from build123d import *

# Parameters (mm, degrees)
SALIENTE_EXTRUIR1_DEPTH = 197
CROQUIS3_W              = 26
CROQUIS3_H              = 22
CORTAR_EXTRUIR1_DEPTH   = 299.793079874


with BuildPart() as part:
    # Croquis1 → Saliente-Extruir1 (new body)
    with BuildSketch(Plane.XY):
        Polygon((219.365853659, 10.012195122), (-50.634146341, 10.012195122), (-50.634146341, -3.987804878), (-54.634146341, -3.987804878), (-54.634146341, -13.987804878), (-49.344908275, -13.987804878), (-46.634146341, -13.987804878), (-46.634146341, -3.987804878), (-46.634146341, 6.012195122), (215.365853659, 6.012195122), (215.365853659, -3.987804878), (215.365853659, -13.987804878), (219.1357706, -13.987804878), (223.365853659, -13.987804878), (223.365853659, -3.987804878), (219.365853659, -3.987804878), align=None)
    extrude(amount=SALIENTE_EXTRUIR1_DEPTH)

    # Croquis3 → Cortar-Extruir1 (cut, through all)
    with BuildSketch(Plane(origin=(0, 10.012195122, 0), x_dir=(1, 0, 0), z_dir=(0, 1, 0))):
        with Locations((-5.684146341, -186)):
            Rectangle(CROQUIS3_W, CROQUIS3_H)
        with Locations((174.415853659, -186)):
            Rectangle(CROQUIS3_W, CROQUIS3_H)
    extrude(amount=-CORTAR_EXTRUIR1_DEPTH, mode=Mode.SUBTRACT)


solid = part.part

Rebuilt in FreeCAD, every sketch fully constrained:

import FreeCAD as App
import Part
import Sketcher
Q = App.Units.Quantity


def add_polygon(sketch, points):
    """Adds a closed chain of lines whose ends are joined by coincident constraints."""
    first, n = sketch.GeometryCount, len(points)
    for a, b in zip(points, points[1:] + points[:1]):
        sketch.addGeometry(Part.LineSegment(App.Vector(*a, 0), App.Vector(*b, 0)), False)
    for i in range(n):
        sketch.addConstraint(Sketcher.Constraint("Coincident", first + i, 2, first + (i + 1) % n, 1))

doc = App.newDocument("Part")
body = doc.addObject("PartDesign::Body", "Body")

sketch1 = doc.addObject("Sketcher::SketchObject", "Sketch")
body.addObject(sketch1)
sketch1.AttachmentSupport = (doc.XY_Plane, [""])
sketch1.MapMode = "FlatFace"
add_polygon(sketch1, [(219.365854, 10.012195), (-50.634146, 10.012195), (-50.634146, -3.987805), (-54.634146, -3.987805), (-54.634146, -13.987805), (-46.634146, -13.987805), (-46.634146, 6.012195), (215.365854, 6.012195), (215.365854, -13.987805), (223.365854, -13.987805), (223.365854, -3.987805), (219.365854, -3.987805)])
sketch1.addConstraint([
    Sketcher.Constraint("Horizontal", 0),
    Sketcher.Constraint("Vertical", 1),
    Sketcher.Constraint("Horizontal", 2),
    Sketcher.Constraint("Vertical", 3),
    Sketcher.Constraint("Horizontal", 4),
    Sketcher.Constraint("Vertical", 5),
    Sketcher.Constraint("Horizontal", 6),
    Sketcher.Constraint("Vertical", 7),
    Sketcher.Constraint("Horizontal", 8),
    Sketcher.Constraint("Vertical", 9),
    Sketcher.Constraint("Horizontal", 10),
    Sketcher.Constraint("Vertical", 11),
    Sketcher.Constraint("Horizontal", 4, 2, 7, 2),
    Sketcher.Constraint("Horizontal", 2, 2, 9, 2),
    Sketcher.Constraint("Equal", 4, 8),
    Sketcher.Constraint("Equal", 2, 10),
    Sketcher.Constraint("DistanceX", 0, 2, 0, 1, Q("270 mm")),
    Sketcher.Constraint("DistanceX", 2, 2, 2, 1, Q("4 mm")),
    Sketcher.Constraint("DistanceX", 4, 1, 4, 2, Q("8 mm")),
    Sketcher.Constraint("DistanceY", 1, 2, 1, 1, Q("14 mm")),
    Sketcher.Constraint("DistanceY", 3, 2, 3, 1, Q("10 mm")),
    Sketcher.Constraint("DistanceY", 5, 1, 5, 2, Q("20 mm")),
    Sketcher.Constraint("DistanceX", 0, 2, -1, 1, Q("50.634146 mm")),
    Sketcher.Constraint("DistanceY", -1, 1, 0, 2, Q("10.012195 mm")),
])
pad1 = doc.addObject("PartDesign::Pad", "Pad")
body.addObject(pad1)
pad1.Profile = sketch1
pad1.Length = 197

sketch2 = doc.addObject("Sketcher::SketchObject", "Sketch001")
body.addObject(sketch2)
sketch2.AttachmentSupport = (doc.XZ_Plane, [""])
sketch2.MapMode = "FlatFace"
sketch2.AttachmentOffset = App.Placement(App.Vector(0, 0, -10.012195), App.Rotation())
add_polygon(sketch2, [(-18.684146, 175), (-18.684146, 197), (7.315854, 197), (7.315854, 175)])
add_polygon(sketch2, [(161.415854, 175), (161.415854, 197), (187.415854, 197), (187.415854, 175)])
sketch2.addConstraint([
    Sketcher.Constraint("Vertical", 0),
    Sketcher.Constraint("Horizontal", 1),
    Sketcher.Constraint("Vertical", 2),
    Sketcher.Constraint("Horizontal", 3),
    Sketcher.Constraint("Vertical", 4),
    Sketcher.Constraint("Horizontal", 5),
    Sketcher.Constraint("Vertical", 6),
    Sketcher.Constraint("Horizontal", 7),
    Sketcher.Constraint("Horizontal", 1, 2, 4, 2),
    Sketcher.Constraint("Horizontal", 3, 2, 6, 2),
    Sketcher.Constraint("Equal", 3, 5),
    Sketcher.Constraint("DistanceX", 1, 1, 1, 2, Q("26 mm")),
    Sketcher.Constraint("DistanceY", 0, 1, 0, 2, Q("22 mm")),
    Sketcher.Constraint("DistanceY", -1, 1, 0, 2, Q("197 mm")),
    Sketcher.Constraint("DistanceX", 1, 2, 4, 2, Q("154.1 mm")),
    Sketcher.Constraint("DistanceX", 0, 2, -1, 1, Q("18.684146 mm")),
])
pocket1 = doc.addObject("PartDesign::Pocket", "Pocket")
body.addObject(pocket1)
pocket1.Profile = sketch2
pocket1.Type = "ThroughAll"
pocket1.Reversed = True

doc.recompute()
